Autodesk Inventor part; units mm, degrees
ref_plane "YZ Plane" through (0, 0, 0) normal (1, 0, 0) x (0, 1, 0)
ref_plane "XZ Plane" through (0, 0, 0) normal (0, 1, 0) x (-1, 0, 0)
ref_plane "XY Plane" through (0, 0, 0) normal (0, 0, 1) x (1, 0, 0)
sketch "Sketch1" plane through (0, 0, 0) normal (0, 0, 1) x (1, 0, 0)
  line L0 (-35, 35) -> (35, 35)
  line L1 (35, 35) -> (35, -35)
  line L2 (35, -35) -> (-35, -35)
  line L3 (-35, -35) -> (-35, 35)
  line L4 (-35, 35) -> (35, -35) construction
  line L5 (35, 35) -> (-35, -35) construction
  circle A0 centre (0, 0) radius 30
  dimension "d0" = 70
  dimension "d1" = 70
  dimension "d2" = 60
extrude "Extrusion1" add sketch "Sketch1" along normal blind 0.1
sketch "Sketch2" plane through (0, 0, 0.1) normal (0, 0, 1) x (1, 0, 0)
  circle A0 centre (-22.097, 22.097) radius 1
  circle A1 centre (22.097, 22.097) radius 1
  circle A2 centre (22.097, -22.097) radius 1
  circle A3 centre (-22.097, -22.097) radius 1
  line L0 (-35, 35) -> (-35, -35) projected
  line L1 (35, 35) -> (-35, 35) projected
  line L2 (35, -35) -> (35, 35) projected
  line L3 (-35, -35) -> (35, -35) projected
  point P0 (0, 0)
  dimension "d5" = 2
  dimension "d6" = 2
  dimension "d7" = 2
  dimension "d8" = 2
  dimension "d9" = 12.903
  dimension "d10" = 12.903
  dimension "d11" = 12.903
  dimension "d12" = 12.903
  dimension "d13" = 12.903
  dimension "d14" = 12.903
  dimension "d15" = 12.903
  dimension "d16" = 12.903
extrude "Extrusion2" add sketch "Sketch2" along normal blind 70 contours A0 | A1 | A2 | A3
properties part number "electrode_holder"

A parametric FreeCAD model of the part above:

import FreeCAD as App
import Part
import Sketcher

V = App.Vector


def add_polygon(sketch, points):
    """Adds a closed chain of lines whose ends are joined by coincident constraints."""
    first, n = sketch.GeometryCount, len(points)
    for a, b in zip(points, points[1:] + points[:1]):
        sketch.addGeometry(Part.LineSegment(App.Vector(*a, 0), App.Vector(*b, 0)), False)
    for i in range(n):
        sketch.addConstraint(Sketcher.Constraint("Coincident", first + i, 2, first + (i + 1) % n, 1))

doc = App.newDocument("Part")
body = doc.addObject("PartDesign::Body", "Body")

# Sketch on XY plane
sketch1 = body.newObject("Sketcher::SketchObject", "Sketch")
sketch1.AttachmentSupport = (doc.getObject("XY_Plane"), [""])
sketch1.MapMode = "FlatFace"
add_polygon(sketch1, [(35, 35), (-35, 35), (-35, -35), (35, -35)])  # lines 0-3
sketch1.addGeometry(Part.Circle(V(0, 0, 0), V(0, 0, 1), 30), False)  # 4
sketch1.addConstraint(Sketcher.Constraint("Horizontal", 0))
sketch1.addConstraint(Sketcher.Constraint("Vertical", 1))
sketch1.addConstraint(Sketcher.Constraint("Horizontal", 2))
sketch1.addConstraint(Sketcher.Constraint("Vertical", 3))
sketch1.addConstraint(Sketcher.Constraint("Coincident", 4, 3, -1, 1))
sketch1.addConstraint(Sketcher.Constraint("Symmetric", 0, 2, 2, 2, -1, 1))
sketch1.addConstraint(Sketcher.Constraint("Equal", 2, 1))
sketch1.addConstraint(Sketcher.Constraint("Diameter", 4, 60.0))
sketch1.addConstraint(Sketcher.Constraint("DistanceX", 0, 2, 0, 1, 70.0))
pad1 = body.newObject("PartDesign::Pad", "Pad")
pad1.Profile = sketch1
pad1.Length = 0.1

# Sketch on XY plane
sketch2 = body.newObject("Sketcher::SketchObject", "Sketch001")
sketch2.AttachmentSupport = (doc.getObject("XY_Plane"), [""])
sketch2.MapMode = "FlatFace"
sketch2.AttachmentOffset = App.Placement(V(0, 0, 0.1), App.Rotation())
sketch2.addGeometry(Part.Circle(V(-22.097, 22.097, 0), V(0, 0, 1), 1), False)
sketch2.addGeometry(Part.Circle(V(22.097, 22.097, 0), V(0, 0, 1), 1), False)
sketch2.addGeometry(Part.Circle(V(22.097, -22.097, 0), V(0, 0, 1), 1), False)
sketch2.addGeometry(Part.Circle(V(-22.097, -22.097, 0), V(0, 0, 1), 1), False)
sketch2.addConstraint(Sketcher.Constraint("Equal", 0, 1))
sketch2.addConstraint(Sketcher.Constraint("Equal", 1, 2))
sketch2.addConstraint(Sketcher.Constraint("Equal", 2, 3))
sketch2.addConstraint(Sketcher.Constraint("Symmetric", 0, 3, 2, 3, -1, 1))
sketch2.addConstraint(Sketcher.Constraint("Symmetric", 1, 3, 3, 3, -1, 1))
sketch2.addConstraint(Sketcher.Constraint("Symmetric", 0, 3, 1, 3, -2))
sketch2.addConstraint(Sketcher.Constraint("Diameter", 0, 2.0))
sketch2.addConstraint(Sketcher.Constraint("DistanceX", 0, 3, -1, 1, 22.097))
sketch2.addConstraint(Sketcher.Constraint("DistanceY", -1, 1, 0, 3, 22.097))
pad2 = body.newObject("PartDesign::Pad", "Pad001")
pad2.Profile = sketch2
pad2.Length = 70

doc.recompute()
